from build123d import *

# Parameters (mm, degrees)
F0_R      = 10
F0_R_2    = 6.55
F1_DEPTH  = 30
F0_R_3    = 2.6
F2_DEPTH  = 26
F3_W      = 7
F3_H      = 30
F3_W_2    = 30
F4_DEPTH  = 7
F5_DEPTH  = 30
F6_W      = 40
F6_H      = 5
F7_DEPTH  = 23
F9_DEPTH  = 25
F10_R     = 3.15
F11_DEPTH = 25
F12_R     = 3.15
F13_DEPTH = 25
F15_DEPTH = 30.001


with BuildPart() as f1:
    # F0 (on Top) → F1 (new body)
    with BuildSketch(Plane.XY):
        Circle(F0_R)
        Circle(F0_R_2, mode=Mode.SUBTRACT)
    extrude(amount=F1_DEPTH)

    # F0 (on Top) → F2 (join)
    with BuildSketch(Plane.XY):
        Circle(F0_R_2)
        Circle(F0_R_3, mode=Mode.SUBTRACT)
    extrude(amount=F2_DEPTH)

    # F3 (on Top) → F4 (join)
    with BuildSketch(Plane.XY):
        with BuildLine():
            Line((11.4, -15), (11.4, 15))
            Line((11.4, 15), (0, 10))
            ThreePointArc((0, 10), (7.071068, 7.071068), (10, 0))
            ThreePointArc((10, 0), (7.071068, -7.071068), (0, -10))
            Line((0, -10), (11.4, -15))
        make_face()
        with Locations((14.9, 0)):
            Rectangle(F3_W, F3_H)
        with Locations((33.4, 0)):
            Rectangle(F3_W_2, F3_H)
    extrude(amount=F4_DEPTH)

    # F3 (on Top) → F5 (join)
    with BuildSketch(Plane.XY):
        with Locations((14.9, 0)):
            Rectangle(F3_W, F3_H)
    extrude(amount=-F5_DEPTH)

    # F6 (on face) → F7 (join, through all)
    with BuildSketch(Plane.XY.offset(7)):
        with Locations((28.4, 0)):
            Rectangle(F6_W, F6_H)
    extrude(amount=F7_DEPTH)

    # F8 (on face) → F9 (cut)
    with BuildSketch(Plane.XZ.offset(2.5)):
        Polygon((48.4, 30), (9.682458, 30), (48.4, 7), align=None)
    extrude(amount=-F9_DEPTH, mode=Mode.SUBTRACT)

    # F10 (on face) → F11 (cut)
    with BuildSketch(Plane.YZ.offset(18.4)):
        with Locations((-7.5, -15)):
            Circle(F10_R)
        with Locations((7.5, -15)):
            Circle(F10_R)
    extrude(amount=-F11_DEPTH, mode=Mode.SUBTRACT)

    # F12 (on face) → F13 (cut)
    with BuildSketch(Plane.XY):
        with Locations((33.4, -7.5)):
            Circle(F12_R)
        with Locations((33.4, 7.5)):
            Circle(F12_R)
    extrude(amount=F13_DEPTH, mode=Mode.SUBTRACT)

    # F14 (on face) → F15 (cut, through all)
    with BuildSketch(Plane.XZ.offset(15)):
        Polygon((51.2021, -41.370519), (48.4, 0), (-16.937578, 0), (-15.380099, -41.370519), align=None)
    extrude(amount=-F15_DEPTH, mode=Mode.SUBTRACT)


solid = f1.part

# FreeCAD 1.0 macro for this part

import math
import FreeCAD as App
import Part
import Sketcher

V = App.Vector
Q = App.Units.Quantity

doc = App.newDocument("Part")
body = doc.addObject("PartDesign::Body", "Body")

# Sketch on XY plane
sketch1 = body.newObject("Sketcher::SketchObject", "Sketch")
sketch1.AttachmentSupport = (doc.getObject("XY_Plane"), [""])
sketch1.MapMode = "FlatFace"
sketch1.addGeometry([
    Part.Circle(V(0, 0, 0), V(0, 0, 1), 10),
    Part.Circle(V(0, 0, 0), V(0, 0, 1), 6.55),
], False)
sketch1.addConstraint([
    Sketcher.Constraint("Coincident", 0, 3, -1, 1),
    Sketcher.Constraint("Coincident", 1, 3, -1, 1),
    Sketcher.Constraint("Diameter", 0, Q("20 mm")),
    Sketcher.Constraint("Diameter", 1, Q("13.1 mm")),
])
pad1 = body.newObject("PartDesign::Pad", "Pad")
pad1.Profile = sketch1
pad1.Length = 30

# Sketch on XY plane
sketch2 = body.newObject("Sketcher::SketchObject", "Sketch001")
sketch2.AttachmentSupport = (doc.getObject("XY_Plane"), [""])
sketch2.MapMode = "FlatFace"
sketch2.addGeometry([
    Part.Circle(V(0, 0, 0), V(0, 0, 1), 6.55),
    Part.Circle(V(0, 0, 0), V(0, 0, 1), 2.6),
], False)
sketch2.addConstraint([
    Sketcher.Constraint("Coincident", 0, 3, -1, 1),
    Sketcher.Constraint("Coincident", 1, 3, -1, 1),
    Sketcher.Constraint("Diameter", 0, Q("13.1 mm")),
    Sketcher.Constraint("Diameter", 1, Q("5.2 mm")),
])
pad2 = body.newObject("PartDesign::Pad", "Pad001")
pad2.Profile = sketch2
pad2.Length = 26

# Sketch on XY plane
sketch3 = body.newObject("Sketcher::SketchObject", "Sketch002")
sketch3.AttachmentSupport = (doc.getObject("XY_Plane"), [""])
sketch3.MapMode = "FlatFace"
sketch3.addGeometry([
    Part.LineSegment(V(11.4, 15, 0), V(0, 10, 0)),  # 0
    Part.ArcOfCircle(Part.Circle(V(0.000001, 0.000001, 0), V(0, 0, 1), 9.999999), math.radians(-0.000004), math.radians(90.000004)),  # 1
    Part.ArcOfCircle(Part.Circle(V(0.000001, -0.000001, 0), V(0, 0, 1), 9.999999), math.radians(-90.000004), math.radians(0.000004)),  # 2
    Part.LineSegment(V(0, -10, 0), V(11.4, -15, 0)),  # 3
    Part.LineSegment(V(11.4, -15, 0), V(48.4, -15, 0)),  # 4
    Part.LineSegment(V(48.4, -15, 0), V(48.4, 15, 0)),  # 5
    Part.LineSegment(V(48.4, 15, 0), V(11.4, 15, 0)),  # 6
], False)
sketch3.addConstraint([
    Sketcher.Constraint("Coincident", 0, 2, 1, 2),
    Sketcher.Constraint("Tangent", 1, 1, 2, 2),
    Sketcher.Constraint("Coincident", 2, 1, 3, 1),
    Sketcher.Constraint("Coincident", 3, 2, 4, 1),
    Sketcher.Constraint("Coincident", 4, 2, 5, 1),
    Sketcher.Constraint("Coincident", 5, 2, 6, 1),
    Sketcher.Constraint("Coincident", 6, 2, 0, 1),
    Sketcher.Constraint("Horizontal", 4),
    Sketcher.Constraint("Vertical", 5),
    Sketcher.Constraint("Horizontal", 6),
    Sketcher.Constraint("Coincident", 1, 3, -1, 1),
    Sketcher.Constraint("Equal", 1, 2),
    Sketcher.Constraint("Symmetric", 3, 2, 6, 2, -1),
    Sketcher.Constraint("PointOnObject", 0, 2, -2),
    Sketcher.Constraint("PointOnObject", 1, 1, -1),
    Sketcher.Constraint("PointOnObject", 2, 1, -2),
    Sketcher.Constraint("Radius", 1, Q("9.999999 mm")),
    Sketcher.Constraint("DistanceX", 4, 1, 4, 2, Q("37 mm")),
    Sketcher.Constraint("DistanceY", 5, 1, 5, 2, Q("30 mm")),
    Sketcher.Constraint("DistanceX", -1, 1, 3, 2, Q("11.4 mm")),
])
pad3 = body.newObject("PartDesign::Pad", "Pad002")
pad3.Profile = sketch3
pad3.Length = 7

# Sketch on XY plane
sketch4 = body.newObject("Sketcher::SketchObject", "Sketch003")
sketch4.AttachmentSupport = (doc.getObject("XY_Plane"), [""])
sketch4.MapMode = "FlatFace"
sketch4.addGeometry([
    Part.LineSegment(V(11.4, 15, 0), V(11.4, -15, 0)),
    Part.LineSegment(V(11.4, -15, 0), V(18.4, -15, 0)),
    Part.LineSegment(V(18.4, -15, 0), V(18.4, 15, 0)),
    Part.LineSegment(V(18.4, 15, 0), V(11.4, 15, 0)),
], False)
sketch4.addConstraint([
    Sketcher.Constraint("Coincident", 0, 2, 1, 1),
    Sketcher.Constraint("Coincident", 1, 2, 2, 1),
    Sketcher.Constraint("Coincident", 2, 2, 3, 1),
    Sketcher.Constraint("Coincident", 3, 2, 0, 1),
    Sketcher.Constraint("Vertical", 0),
    Sketcher.Constraint("Horizontal", 1),
    Sketcher.Constraint("Vertical", 2),
    Sketcher.Constraint("Horizontal", 3),
    Sketcher.Constraint("DistanceX", 1, 1, 1, 2, Q("7 mm")),
    Sketcher.Constraint("DistanceY", 0, 2, 0, 1, Q("30 mm")),
    Sketcher.Constraint("DistanceY", 0, 2, -1, 1, Q("15 mm")),
    Sketcher.Constraint("DistanceX", -1, 1, 0, 2, Q("11.4 mm")),
])
pad4 = body.newObject("PartDesign::Pad", "Pad003")
pad4.Profile = sketch4
pad4.Length = 30
pad4.Reversed = True

# Sketch on XY plane
sketch5 = body.newObject("Sketcher::SketchObject", "Sketch004")
sketch5.AttachmentSupport = (doc.getObject("XY_Plane"), [""])
sketch5.MapMode = "FlatFace"
sketch5.AttachmentOffset = App.Placement(V(0, 0, 7), App.Rotation())
sketch5.addGeometry([
    Part.LineSegment(V(8.4, 2.5, 0), V(8.4, -2.5, 0)),
    Part.LineSegment(V(8.4, -2.5, 0), V(48.4, -2.5, 0)),
    Part.LineSegment(V(48.4, -2.5, 0), V(48.4, 2.5, 0)),
    Part.LineSegment(V(48.4, 2.5, 0), V(8.4, 2.5, 0)),
], False)
sketch5.addConstraint([
    Sketcher.Constraint("Coincident", 0, 2, 1, 1),
    Sketcher.Constraint("Coincident", 1, 2, 2, 1),
    Sketcher.Constraint("Coincident", 2, 2, 3, 1),
    Sketcher.Constraint("Coincident", 3, 2, 0, 1),
    Sketcher.Constraint("Vertical", 0),
    Sketcher.Constraint("Horizontal", 1),
    Sketcher.Constraint("Vertical", 2),
    Sketcher.Constraint("Horizontal", 3),
    Sketcher.Constraint("DistanceX", 1, 1, 1, 2, Q("40 mm")),
    Sketcher.Constraint("DistanceY", 0, 2, 0, 1, Q("5 mm")),
    Sketcher.Constraint("DistanceX", -1, 1, 0, 2, Q("8.4 mm")),
    Sketcher.Constraint("DistanceY", 0, 2, -1, 1, Q("2.5 mm")),
])
pad5 = body.newObject("PartDesign::Pad", "Pad004")
pad5.Profile = sketch5
pad5.Length = 23

# Sketch on XZ plane
sketch6 = body.newObject("Sketcher::SketchObject", "Sketch005")
sketch6.AttachmentSupport = (doc.getObject("XZ_Plane"), [""])
sketch6.MapMode = "FlatFace"
sketch6.AttachmentOffset = App.Placement(V(0, 0, 2.5), App.Rotation())
sketch6.addGeometry([
    Part.LineSegment(V(48.4, 30, 0), V(9.682458, 30, 0)),
    Part.LineSegment(V(9.682458, 30, 0), V(48.4, 7, 0)),
    Part.LineSegment(V(48.4, 7, 0), V(48.4, 30, 0)),
], False)
sketch6.addConstraint([
    Sketcher.Constraint("Coincident", 0, 2, 1, 1),
    Sketcher.Constraint("Coincident", 1, 2, 2, 1),
    Sketcher.Constraint("Coincident", 2, 2, 0, 1),
    Sketcher.Constraint("Horizontal", 0),
    Sketcher.Constraint("Vertical", 2),
    Sketcher.Constraint("DistanceY", 2, 1, 2, 2, Q("23 mm")),
    Sketcher.Constraint("DistanceY", -1, 1, 0, 2, Q("30 mm")),
    Sketcher.Constraint("DistanceX", -1, 1, 1, 2, Q("48.4 mm")),
    Sketcher.Constraint("DistanceX", 0, 2, 0, 1, Q("38.717542 mm")),
])
pocket1 = body.newObject("PartDesign::Pocket", "Pocket")
pocket1.Profile = sketch6
pocket1.Length = 25

# Sketch on YZ plane
sketch7 = body.newObject("Sketcher::SketchObject", "Sketch006")
sketch7.AttachmentSupport = (doc.getObject("YZ_Plane"), [""])
sketch7.MapMode = "FlatFace"
sketch7.AttachmentOffset = App.Placement(V(0, 0, 18.4), App.Rotation())
sketch7.addGeometry([
    Part.Circle(V(-7.5, -15, 0), V(0, 0, 1), 3.15),
    Part.Circle(V(7.5, -15, 0), V(0, 0, 1), 3.15),
], False)
sketch7.addConstraint([
    Sketcher.Constraint("Equal", 0, 1),
    Sketcher.Constraint("Symmetric", 0, 3, 1, 3, -2),
    Sketcher.Constraint("Diameter", 0, Q("6.3 mm")),
    Sketcher.Constraint("DistanceY", 0, 3, -1, 1, Q("15 mm")),
    Sketcher.Constraint("DistanceX", 0, 3, 1, 3, Q("15 mm")),
])
pocket2 = body.newObject("PartDesign::Pocket", "Pocket001")
pocket2.Profile = sketch7
pocket2.Length = 25

# Sketch on XY plane
sketch8 = body.newObject("Sketcher::SketchObject", "Sketch007")
sketch8.AttachmentSupport = (doc.getObject("XY_Plane"), [""])
sketch8.MapMode = "FlatFace"
sketch8.addGeometry([
    Part.Circle(V(33.4, -7.5, 0), V(0, 0, 1), 3.15),
    Part.Circle(V(33.4, 7.5, 0), V(0, 0, 1), 3.15),
], False)
sketch8.addConstraint([
    Sketcher.Constraint("Equal", 0, 1),
    Sketcher.Constraint("Symmetric", 0, 3, 1, 3, -1),
    Sketcher.Constraint("Diameter", 0, Q("6.3 mm")),
    Sketcher.Constraint("DistanceY", 0, 3, 1, 3, Q("15 mm")),
    Sketcher.Constraint("DistanceX", -1, 1, 0, 3, Q("33.4 mm")),
])
pocket3 = body.newObject("PartDesign::Pocket", "Pocket002")
pocket3.Profile = sketch8
pocket3.Length = 25
pocket3.Reversed = True

# Sketch on XZ plane
sketch9 = body.newObject("Sketcher::SketchObject", "Sketch008")
sketch9.AttachmentSupport = (doc.getObject("XZ_Plane"), [""])
sketch9.MapMode = "FlatFace"
sketch9.AttachmentOffset = App.Placement(V(0, 0, 15), App.Rotation())
sketch9.addGeometry([
    Part.LineSegment(V(51.2021, -41.370519, 0), V(48.4, 0, 0)),
    Part.LineSegment(V(48.4, 0, 0), V(-16.937578, 0, 0)),
    Part.LineSegment(V(-16.937578, 0, 0), V(-15.380099, -41.370519, 0)),
    Part.LineSegment(V(-15.380099, -41.370519, 0), V(51.2021, -41.370519, 0)),
], False)
sketch9.addConstraint([
    Sketcher.Constraint("Coincident", 0, 2, 1, 1),
    Sketcher.Constraint("Coincident", 1, 2, 2, 1),
    Sketcher.Constraint("Coincident", 2, 2, 3, 1),
    Sketcher.Constraint("Coincident", 3, 2, 0, 1),
    Sketcher.Constraint("Horizontal", 1),
    Sketcher.Constraint("Horizontal", 3),
    Sketcher.Constraint("PointOnObject", 0, 2, -1),
    Sketcher.Constraint("DistanceX", -1, 1, 0, 2, Q("48.4 mm")),
    Sketcher.Constraint("DistanceX", 3, 1, 3, 2, Q("66.582199 mm")),
    Sketcher.Constraint("DistanceX", 2, 2, -1, 1, Q("15.380099 mm")),
    Sketcher.Constraint("DistanceX", 1, 2, 1, 1, Q("65.337578 mm")),
    Sketcher.Constraint("DistanceY", 2, 2, -1, 1, Q("41.370519 mm")),
])
pocket4 = body.newObject("PartDesign::Pocket", "Pocket003")
pocket4.Profile = sketch9
pocket4.Type = "ThroughAll"

doc.recompute()
